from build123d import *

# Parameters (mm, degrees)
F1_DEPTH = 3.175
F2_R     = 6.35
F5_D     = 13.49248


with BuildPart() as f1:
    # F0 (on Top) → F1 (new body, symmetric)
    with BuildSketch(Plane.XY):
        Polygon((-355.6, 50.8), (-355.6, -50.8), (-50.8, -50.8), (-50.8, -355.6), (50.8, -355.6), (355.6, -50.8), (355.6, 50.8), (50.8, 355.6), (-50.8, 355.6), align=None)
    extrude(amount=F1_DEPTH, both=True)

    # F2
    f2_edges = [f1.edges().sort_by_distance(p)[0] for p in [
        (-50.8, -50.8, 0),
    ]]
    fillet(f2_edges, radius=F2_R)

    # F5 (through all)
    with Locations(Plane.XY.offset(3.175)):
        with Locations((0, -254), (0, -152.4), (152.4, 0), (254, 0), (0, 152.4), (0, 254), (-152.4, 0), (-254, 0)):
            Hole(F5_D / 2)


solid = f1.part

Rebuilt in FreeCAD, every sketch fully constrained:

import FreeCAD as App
import Part
import Sketcher

V = App.Vector
Q = App.Units.Quantity


def edges_at(feature, points):
    """Names of the edges that pass closest to the given points."""
    edges = feature.Shape.Edges
    near = lambda p: min(range(len(edges)), key=lambda i: edges[i].distToShape(Part.Vertex(*p))[0])
    return sorted({f"Edge{near(p) + 1}" for p in points})


def add_polygon(sketch, points):
    """Adds a closed chain of lines whose ends are joined by coincident constraints."""
    first, n = sketch.GeometryCount, len(points)
    for a, b in zip(points, points[1:] + points[:1]):
        sketch.addGeometry(Part.LineSegment(App.Vector(*a, 0), App.Vector(*b, 0)), False)
    for i in range(n):
        sketch.addConstraint(Sketcher.Constraint("Coincident", first + i, 2, first + (i + 1) % n, 1))

doc = App.newDocument("Part")
body = doc.addObject("PartDesign::Body", "Body")

# Sketch on XY plane
sketch1 = body.newObject("Sketcher::SketchObject", "Sketch")
sketch1.AttachmentSupport = (doc.getObject("XY_Plane"), [""])
sketch1.MapMode = "FlatFace"
add_polygon(sketch1, [(-356, 51), (-356, -51), (-51, -51), (-51, -356), (51, -356), (356, -51), (356, 51), (51, 356), (-51, 356)])  # lines 0-8
sketch1.addConstraint(Sketcher.Constraint("Vertical", 0))
sketch1.addConstraint(Sketcher.Constraint("Horizontal", 1))
sketch1.addConstraint(Sketcher.Constraint("Vertical", 2))
sketch1.addConstraint(Sketcher.Constraint("Horizontal", 3))
sketch1.addConstraint(Sketcher.Constraint("Vertical", 5))
sketch1.addConstraint(Sketcher.Constraint("Horizontal", 7))
sketch1.addConstraint(Sketcher.Constraint("Symmetric", 0, 2, 5, 2, -1, 1))
sketch1.addConstraint(Sketcher.Constraint("Symmetric", 2, 2, 6, 2, -1, 1))
sketch1.addConstraint(Sketcher.Constraint("Perpendicular", 4, 6))
sketch1.addConstraint(Sketcher.Constraint("Perpendicular", 6, 8))
sketch1.addConstraint(Sketcher.Constraint("Horizontal", 1, 2, 4, 2))
sketch1.addConstraint(Sketcher.Constraint("Horizontal", 5, 2, 8, 2))
sketch1.addConstraint(Sketcher.Constraint("Vertical", 3, 2, 6, 2))
sketch1.addConstraint(Sketcher.Constraint("Equal", 7, 0))
sketch1.addConstraint(Sketcher.Constraint("DistanceX", 1, 1, 1, 2, Q("12 in")))
sketch1.addConstraint(Sketcher.Constraint("DistanceX", 3, 1, 3, 2, Q("4 in")))
pad1 = body.newObject("PartDesign::Pad", "Pad")
pad1.Profile = sketch1
pad1.Length = Q("0.25 in")
pad1.Midplane = True
doc.recompute()

fillet = body.newObject("PartDesign::Fillet", "Fillet")
fillet.Base = (pad1, edges_at(pad1, [(-50.8, -50.8, 0)]))
fillet.Radius = Q("0.25 in")

# Sketch on XY plane
sketch2 = body.newObject("Sketcher::SketchObject", "Sketch001")
sketch2.AttachmentSupport = (doc.getObject("XY_Plane"), [""])
sketch2.MapMode = "FlatFace"
sketch2.AttachmentOffset = App.Placement(V(0, 0, 0.125 * 25.4), App.Rotation())
sketch2.addGeometry(Part.Circle(V(0, -254, 0), V(0, 0, 1), 7), False)
sketch2.addGeometry(Part.Circle(V(0, -152, 0), V(0, 0, 1), 7), False)
sketch2.addGeometry(Part.Circle(V(152, 0, 0), V(0, 0, 1), 7), False)
sketch2.addGeometry(Part.Circle(V(254, 0, 0), V(0, 0, 1), 7), False)
sketch2.addGeometry(Part.Circle(V(0, 152, 0), V(0, 0, 1), 7), False)
sketch2.addGeometry(Part.Circle(V(0, 254, 0), V(0, 0, 1), 7), False)
sketch2.addGeometry(Part.Circle(V(-152, 0, 0), V(0, 0, 1), 7), False)
sketch2.addGeometry(Part.Circle(V(-254, 0, 0), V(0, 0, 1), 7), False)
sketch2.addConstraint(Sketcher.Constraint("Equal", 0, 1))
sketch2.addConstraint(Sketcher.Constraint("Equal", 1, 2))
sketch2.addConstraint(Sketcher.Constraint("Equal", 2, 3))
sketch2.addConstraint(Sketcher.Constraint("Equal", 3, 4))
sketch2.addConstraint(Sketcher.Constraint("Equal", 4, 5))
sketch2.addConstraint(Sketcher.Constraint("Equal", 5, 6))
sketch2.addConstraint(Sketcher.Constraint("Equal", 6, 7))
sketch2.addConstraint(Sketcher.Constraint("Symmetric", 1, 3, 4, 3, -1, 1))
sketch2.addConstraint(Sketcher.Constraint("Symmetric", 0, 3, 5, 3, -1, 1))
sketch2.addConstraint(Sketcher.Constraint("Symmetric", 2, 3, 6, 3, -1, 1))
sketch2.addConstraint(Sketcher.Constraint("Symmetric", 3, 3, 7, 3, -1, 1))
sketch2.addConstraint(Sketcher.Constraint("PointOnObject", 0, 3, -2))
sketch2.addConstraint(Sketcher.Constraint("PointOnObject", 1, 3, -2))
sketch2.addConstraint(Sketcher.Constraint("PointOnObject", 2, 3, -1))
sketch2.addConstraint(Sketcher.Constraint("PointOnObject", 3, 3, -1))
sketch2.addConstraint(Sketcher.Constraint("DistanceY", 0, 3, -1, 1, Q("10 in")))
sketch2.addConstraint(Sketcher.Constraint("DistanceY", 1, 3, -1, 1, Q("6 in")))
sketch2.addConstraint(Sketcher.Constraint("DistanceX", -1, 1, 2, 3, Q("6 in")))
sketch2.addConstraint(Sketcher.Constraint("DistanceX", -1, 1, 3, 3, Q("10 in")))
sketch2.addConstraint(Sketcher.Constraint("Diameter", 0, Q("0.5312 in")))
doc.recompute()
hole = body.newObject("PartDesign::Hole", "Hole")
hole.Profile = sketch2
hole.ThreadType = "None"
hole.Diameter = Q("0.5312 in")
hole.DepthType = "ThroughAll"

doc.recompute()
